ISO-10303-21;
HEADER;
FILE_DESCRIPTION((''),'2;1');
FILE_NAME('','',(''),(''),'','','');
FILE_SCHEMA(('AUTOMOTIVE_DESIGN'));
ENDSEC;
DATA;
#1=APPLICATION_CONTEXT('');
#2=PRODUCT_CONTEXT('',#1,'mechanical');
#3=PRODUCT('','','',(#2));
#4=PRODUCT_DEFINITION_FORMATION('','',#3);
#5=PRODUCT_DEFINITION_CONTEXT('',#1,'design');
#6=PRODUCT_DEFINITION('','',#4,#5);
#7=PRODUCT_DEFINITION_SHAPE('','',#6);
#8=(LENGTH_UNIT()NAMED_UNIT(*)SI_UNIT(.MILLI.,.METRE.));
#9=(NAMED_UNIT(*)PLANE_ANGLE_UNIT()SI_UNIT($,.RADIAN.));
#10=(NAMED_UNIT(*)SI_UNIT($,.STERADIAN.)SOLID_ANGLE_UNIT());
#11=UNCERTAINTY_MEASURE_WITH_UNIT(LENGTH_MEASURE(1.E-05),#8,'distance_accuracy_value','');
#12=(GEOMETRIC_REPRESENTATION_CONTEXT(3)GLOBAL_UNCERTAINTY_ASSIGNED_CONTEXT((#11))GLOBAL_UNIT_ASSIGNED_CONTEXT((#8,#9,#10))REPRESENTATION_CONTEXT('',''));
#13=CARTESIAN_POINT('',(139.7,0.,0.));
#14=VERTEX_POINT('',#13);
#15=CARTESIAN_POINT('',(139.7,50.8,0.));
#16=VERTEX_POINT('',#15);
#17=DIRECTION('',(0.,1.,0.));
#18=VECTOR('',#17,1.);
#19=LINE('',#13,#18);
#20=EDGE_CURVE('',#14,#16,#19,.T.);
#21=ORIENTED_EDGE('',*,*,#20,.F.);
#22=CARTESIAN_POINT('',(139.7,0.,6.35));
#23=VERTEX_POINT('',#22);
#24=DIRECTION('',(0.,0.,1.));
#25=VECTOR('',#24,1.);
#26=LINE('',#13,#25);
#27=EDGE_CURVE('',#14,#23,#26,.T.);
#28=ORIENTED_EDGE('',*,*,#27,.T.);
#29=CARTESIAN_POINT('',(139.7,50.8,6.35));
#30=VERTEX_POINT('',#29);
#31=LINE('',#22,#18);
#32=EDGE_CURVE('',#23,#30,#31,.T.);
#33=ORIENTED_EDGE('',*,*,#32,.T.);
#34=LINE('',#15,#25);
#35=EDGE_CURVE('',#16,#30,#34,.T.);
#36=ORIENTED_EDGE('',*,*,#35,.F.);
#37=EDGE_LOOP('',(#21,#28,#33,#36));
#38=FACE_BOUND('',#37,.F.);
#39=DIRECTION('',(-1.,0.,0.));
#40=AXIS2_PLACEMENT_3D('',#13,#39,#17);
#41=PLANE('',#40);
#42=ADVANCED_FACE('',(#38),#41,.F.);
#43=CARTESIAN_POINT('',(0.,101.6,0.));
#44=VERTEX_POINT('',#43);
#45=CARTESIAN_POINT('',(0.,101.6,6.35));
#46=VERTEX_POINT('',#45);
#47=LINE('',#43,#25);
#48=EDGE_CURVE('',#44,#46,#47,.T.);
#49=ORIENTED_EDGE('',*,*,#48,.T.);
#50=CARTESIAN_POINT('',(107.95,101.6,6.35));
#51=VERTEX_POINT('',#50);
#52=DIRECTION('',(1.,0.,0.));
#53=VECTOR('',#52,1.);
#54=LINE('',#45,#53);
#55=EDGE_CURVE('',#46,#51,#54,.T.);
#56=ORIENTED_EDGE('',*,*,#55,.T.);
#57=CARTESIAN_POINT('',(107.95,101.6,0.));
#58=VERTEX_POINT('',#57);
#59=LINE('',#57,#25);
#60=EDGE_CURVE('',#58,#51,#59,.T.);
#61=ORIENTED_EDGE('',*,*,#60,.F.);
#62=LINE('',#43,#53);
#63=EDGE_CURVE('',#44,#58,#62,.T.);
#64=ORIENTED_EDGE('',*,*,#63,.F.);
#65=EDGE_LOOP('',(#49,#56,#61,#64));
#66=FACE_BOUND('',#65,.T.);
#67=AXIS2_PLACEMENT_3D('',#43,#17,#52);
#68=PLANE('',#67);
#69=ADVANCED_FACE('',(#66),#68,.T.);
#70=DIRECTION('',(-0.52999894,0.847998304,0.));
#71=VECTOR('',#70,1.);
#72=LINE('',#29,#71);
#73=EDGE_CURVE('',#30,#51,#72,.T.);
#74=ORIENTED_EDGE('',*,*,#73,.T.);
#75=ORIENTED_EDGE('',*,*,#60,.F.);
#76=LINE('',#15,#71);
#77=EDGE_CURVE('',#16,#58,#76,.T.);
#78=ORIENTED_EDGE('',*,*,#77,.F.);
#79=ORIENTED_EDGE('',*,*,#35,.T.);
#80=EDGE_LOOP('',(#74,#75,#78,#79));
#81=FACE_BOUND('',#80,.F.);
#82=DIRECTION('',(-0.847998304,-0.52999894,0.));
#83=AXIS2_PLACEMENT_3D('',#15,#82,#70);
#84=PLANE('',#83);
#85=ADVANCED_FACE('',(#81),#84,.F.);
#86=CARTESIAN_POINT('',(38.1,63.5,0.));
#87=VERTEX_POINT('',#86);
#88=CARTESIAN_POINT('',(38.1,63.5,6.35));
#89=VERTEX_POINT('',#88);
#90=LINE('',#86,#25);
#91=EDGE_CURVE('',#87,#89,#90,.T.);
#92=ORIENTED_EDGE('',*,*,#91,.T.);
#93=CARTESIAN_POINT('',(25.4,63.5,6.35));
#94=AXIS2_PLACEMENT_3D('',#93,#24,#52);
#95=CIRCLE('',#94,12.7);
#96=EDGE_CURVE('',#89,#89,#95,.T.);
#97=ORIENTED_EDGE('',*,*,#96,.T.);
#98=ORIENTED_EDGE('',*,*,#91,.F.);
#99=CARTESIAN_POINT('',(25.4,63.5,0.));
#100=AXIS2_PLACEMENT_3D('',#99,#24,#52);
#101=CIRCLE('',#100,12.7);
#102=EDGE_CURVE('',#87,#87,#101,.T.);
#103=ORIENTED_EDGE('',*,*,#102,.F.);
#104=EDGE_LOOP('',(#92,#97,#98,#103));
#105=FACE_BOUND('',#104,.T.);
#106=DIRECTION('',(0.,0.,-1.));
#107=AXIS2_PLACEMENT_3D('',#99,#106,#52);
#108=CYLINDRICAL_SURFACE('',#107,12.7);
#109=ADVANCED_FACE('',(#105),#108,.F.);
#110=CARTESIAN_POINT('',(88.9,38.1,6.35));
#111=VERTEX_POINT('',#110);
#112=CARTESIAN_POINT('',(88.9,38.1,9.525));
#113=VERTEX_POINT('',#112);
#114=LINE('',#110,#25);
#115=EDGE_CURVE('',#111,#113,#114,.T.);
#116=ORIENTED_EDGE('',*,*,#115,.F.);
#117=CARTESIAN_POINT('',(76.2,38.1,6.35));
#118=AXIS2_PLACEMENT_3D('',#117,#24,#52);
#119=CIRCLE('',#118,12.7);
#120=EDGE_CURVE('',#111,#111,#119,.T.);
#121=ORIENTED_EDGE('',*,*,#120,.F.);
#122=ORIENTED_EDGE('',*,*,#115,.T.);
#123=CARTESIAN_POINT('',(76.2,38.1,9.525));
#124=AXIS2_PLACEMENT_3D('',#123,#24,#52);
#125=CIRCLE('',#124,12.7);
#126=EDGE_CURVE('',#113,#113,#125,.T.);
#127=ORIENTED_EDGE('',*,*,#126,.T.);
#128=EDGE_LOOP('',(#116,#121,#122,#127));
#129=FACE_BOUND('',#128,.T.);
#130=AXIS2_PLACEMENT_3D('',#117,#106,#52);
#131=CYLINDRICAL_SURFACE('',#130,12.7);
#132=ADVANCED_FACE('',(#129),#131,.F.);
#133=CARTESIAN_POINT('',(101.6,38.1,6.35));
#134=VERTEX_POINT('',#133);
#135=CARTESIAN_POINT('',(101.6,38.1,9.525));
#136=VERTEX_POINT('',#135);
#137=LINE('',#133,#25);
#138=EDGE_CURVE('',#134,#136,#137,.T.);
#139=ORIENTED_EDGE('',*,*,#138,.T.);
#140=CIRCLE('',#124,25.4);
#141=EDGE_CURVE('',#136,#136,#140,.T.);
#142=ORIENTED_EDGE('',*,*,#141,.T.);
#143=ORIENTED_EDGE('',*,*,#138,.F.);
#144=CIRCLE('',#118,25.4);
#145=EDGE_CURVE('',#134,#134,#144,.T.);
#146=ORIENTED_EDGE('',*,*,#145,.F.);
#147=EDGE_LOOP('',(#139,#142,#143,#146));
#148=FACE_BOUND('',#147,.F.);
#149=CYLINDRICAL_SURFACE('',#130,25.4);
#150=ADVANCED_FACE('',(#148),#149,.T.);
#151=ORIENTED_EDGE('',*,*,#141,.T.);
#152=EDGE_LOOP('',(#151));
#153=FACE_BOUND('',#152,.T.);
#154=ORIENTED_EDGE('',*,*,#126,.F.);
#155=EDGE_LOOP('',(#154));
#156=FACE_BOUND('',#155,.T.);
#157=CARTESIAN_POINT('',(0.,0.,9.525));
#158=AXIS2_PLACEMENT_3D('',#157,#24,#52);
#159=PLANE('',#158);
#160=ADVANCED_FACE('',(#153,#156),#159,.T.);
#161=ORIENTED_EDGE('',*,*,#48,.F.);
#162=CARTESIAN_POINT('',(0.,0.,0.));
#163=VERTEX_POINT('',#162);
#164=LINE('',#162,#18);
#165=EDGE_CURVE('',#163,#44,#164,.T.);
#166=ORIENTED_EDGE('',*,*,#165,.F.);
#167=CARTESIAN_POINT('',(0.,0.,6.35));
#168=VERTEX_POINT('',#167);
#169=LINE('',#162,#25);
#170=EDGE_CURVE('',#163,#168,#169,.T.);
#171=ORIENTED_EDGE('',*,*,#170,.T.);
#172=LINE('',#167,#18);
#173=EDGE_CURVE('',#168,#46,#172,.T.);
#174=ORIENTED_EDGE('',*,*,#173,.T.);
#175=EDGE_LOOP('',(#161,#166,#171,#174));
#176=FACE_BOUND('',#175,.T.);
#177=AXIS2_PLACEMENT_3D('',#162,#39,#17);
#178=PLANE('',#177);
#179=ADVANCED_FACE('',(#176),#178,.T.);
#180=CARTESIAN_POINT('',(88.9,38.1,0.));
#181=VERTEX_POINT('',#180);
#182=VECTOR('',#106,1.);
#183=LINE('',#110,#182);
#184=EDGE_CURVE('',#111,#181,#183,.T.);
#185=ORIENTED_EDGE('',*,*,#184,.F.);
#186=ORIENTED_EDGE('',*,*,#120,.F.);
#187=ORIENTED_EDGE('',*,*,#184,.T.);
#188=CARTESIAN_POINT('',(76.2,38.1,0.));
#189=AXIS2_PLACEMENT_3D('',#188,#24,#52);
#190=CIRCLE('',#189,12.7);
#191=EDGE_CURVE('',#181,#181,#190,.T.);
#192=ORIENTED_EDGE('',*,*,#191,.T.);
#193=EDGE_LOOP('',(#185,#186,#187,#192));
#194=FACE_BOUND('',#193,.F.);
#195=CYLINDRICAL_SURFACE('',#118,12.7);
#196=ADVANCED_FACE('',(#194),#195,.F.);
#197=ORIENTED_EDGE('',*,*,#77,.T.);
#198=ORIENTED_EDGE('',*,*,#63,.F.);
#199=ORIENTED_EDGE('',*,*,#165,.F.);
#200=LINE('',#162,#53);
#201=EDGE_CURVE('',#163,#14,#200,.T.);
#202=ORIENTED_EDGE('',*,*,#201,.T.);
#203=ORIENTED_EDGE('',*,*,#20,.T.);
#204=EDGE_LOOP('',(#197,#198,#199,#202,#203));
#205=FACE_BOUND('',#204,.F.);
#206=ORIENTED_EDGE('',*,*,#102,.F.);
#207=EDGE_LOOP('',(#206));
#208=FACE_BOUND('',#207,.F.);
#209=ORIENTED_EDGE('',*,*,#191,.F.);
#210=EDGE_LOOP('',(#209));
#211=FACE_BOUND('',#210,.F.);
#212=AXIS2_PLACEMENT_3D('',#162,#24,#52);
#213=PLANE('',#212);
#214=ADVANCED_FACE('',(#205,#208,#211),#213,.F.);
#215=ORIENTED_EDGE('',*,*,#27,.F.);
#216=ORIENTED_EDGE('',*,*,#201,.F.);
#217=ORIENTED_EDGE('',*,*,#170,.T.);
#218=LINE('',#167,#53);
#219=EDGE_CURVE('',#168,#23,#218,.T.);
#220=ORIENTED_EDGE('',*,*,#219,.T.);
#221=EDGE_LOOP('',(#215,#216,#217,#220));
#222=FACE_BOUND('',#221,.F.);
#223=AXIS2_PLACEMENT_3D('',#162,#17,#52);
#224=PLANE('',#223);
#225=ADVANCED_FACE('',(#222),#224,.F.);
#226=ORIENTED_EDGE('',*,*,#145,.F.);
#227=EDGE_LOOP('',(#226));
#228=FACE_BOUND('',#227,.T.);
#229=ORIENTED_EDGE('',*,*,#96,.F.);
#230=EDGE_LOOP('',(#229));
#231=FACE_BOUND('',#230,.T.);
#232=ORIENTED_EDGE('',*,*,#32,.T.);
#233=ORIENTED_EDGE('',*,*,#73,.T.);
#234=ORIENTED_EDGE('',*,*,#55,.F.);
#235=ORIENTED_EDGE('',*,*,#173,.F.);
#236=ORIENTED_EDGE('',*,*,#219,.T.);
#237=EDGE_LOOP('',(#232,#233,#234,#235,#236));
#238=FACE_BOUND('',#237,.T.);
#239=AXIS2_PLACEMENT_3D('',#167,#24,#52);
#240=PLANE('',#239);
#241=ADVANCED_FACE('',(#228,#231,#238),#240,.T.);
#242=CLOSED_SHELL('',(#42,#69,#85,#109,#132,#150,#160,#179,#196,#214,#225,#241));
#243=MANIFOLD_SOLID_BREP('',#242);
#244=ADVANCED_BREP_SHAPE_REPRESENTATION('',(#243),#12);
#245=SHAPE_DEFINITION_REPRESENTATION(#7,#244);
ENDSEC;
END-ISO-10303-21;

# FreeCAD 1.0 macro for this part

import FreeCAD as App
import Part
import Sketcher

V = App.Vector
Q = App.Units.Quantity

doc = App.newDocument("Part")
body = doc.addObject("PartDesign::Body", "Body")

sketch1 = body.newObject("Sketcher::SketchObject", "Sketch")
sketch1.AttachmentSupport = (doc.getObject("XY_Plane"), [""])
sketch1.MapMode = "FlatFace"
sketch1.addGeometry([
    Part.LineSegment(V(0, 102, 0), V(0, 0, 0)),
    Part.LineSegment(V(0, 0, 0), V(140, 0, 0)),
    Part.LineSegment(V(140, 0, 0), V(140, 51, 0)),
    Part.LineSegment(V(140, 51, 0), V(108, 102, 0)),
    Part.LineSegment(V(108, 102, 0), V(0, 102, 0)),
    Part.Circle(V(76, 38, 0), V(0, 0, 1), 25),
    Part.Circle(V(25, 64, 0), V(0, 0, 1), 13),
], False)
sketch1.addConstraint([
    Sketcher.Constraint("Coincident", 0, 2, 1, 1),
    Sketcher.Constraint("Coincident", 1, 2, 2, 1),
    Sketcher.Constraint("Coincident", 2, 2, 3, 1),
    Sketcher.Constraint("Coincident", 3, 2, 4, 1),
    Sketcher.Constraint("Coincident", 4, 2, 0, 1),
    Sketcher.Constraint("Vertical", 0),
    Sketcher.Constraint("Horizontal", 1),
    Sketcher.Constraint("Vertical", 2),
    Sketcher.Constraint("Horizontal", 4),
    Sketcher.Constraint("Coincident", 0, 2, -1, 1),
    Sketcher.Constraint("Diameter", 5, Q("2 in")),
    Sketcher.Constraint("Diameter", 6, Q("1 in")),
    Sketcher.Constraint("DistanceY", 0, 2, 0, 1, Q("4 in")),
    Sketcher.Constraint("DistanceY", 2, 1, 2, 2, Q("2 in")),
    Sketcher.Constraint("DistanceX", 1, 1, 1, 2, Q("5.5 in")),
    Sketcher.Constraint("DistanceX", -1, 1, 6, 3, Q("1 in")),
    Sketcher.Constraint("DistanceX", 6, 3, 5, 3, Q("2 in")),
    Sketcher.Constraint("DistanceY", 5, 3, 6, 3, Q("1 in")),
    Sketcher.Constraint("DistanceX", 4, 2, 4, 1, Q("4.25 in")),
    Sketcher.Constraint("DistanceY", -1, 1, 5, 3, Q("1.5 in")),
])
pad1 = body.newObject("PartDesign::Pad", "Pad")
pad1.Profile = sketch1
pad1.Length = Q("0.25 in")

sketch2 = body.newObject("Sketcher::SketchObject", "Sketch001")
sketch2.AttachmentSupport = (doc.getObject("XY_Plane"), [""])
sketch2.MapMode = "FlatFace"
sketch2.AttachmentOffset = App.Placement(V(0, 0, 0.25 * 25.4), App.Rotation())
sketch2.addGeometry([
    Part.Circle(V(76, 38, 0), V(0, 0, 1), 25),
    Part.Circle(V(76, 38, 0), V(0, 0, 1), 13),
], False)
sketch2.addConstraint([
    Sketcher.Constraint("Coincident", 1, 3, 0, 3),
    Sketcher.Constraint("Diameter", 0, Q("2 in")),
    Sketcher.Constraint("Diameter", 1, Q("1 in")),
    Sketcher.Constraint("DistanceX", -1, 1, 0, 3, Q("3 in")),
    Sketcher.Constraint("DistanceY", -1, 1, 0, 3, Q("1.5 in")),
])
pad2 = body.newObject("PartDesign::Pad", "Pad001")
pad2.Profile = sketch2
pad2.Type = "TwoLengths"
pad2.Length = Q("0.125 in")
pad2.Length2 = Q("0.25 in")

doc.recompute()
